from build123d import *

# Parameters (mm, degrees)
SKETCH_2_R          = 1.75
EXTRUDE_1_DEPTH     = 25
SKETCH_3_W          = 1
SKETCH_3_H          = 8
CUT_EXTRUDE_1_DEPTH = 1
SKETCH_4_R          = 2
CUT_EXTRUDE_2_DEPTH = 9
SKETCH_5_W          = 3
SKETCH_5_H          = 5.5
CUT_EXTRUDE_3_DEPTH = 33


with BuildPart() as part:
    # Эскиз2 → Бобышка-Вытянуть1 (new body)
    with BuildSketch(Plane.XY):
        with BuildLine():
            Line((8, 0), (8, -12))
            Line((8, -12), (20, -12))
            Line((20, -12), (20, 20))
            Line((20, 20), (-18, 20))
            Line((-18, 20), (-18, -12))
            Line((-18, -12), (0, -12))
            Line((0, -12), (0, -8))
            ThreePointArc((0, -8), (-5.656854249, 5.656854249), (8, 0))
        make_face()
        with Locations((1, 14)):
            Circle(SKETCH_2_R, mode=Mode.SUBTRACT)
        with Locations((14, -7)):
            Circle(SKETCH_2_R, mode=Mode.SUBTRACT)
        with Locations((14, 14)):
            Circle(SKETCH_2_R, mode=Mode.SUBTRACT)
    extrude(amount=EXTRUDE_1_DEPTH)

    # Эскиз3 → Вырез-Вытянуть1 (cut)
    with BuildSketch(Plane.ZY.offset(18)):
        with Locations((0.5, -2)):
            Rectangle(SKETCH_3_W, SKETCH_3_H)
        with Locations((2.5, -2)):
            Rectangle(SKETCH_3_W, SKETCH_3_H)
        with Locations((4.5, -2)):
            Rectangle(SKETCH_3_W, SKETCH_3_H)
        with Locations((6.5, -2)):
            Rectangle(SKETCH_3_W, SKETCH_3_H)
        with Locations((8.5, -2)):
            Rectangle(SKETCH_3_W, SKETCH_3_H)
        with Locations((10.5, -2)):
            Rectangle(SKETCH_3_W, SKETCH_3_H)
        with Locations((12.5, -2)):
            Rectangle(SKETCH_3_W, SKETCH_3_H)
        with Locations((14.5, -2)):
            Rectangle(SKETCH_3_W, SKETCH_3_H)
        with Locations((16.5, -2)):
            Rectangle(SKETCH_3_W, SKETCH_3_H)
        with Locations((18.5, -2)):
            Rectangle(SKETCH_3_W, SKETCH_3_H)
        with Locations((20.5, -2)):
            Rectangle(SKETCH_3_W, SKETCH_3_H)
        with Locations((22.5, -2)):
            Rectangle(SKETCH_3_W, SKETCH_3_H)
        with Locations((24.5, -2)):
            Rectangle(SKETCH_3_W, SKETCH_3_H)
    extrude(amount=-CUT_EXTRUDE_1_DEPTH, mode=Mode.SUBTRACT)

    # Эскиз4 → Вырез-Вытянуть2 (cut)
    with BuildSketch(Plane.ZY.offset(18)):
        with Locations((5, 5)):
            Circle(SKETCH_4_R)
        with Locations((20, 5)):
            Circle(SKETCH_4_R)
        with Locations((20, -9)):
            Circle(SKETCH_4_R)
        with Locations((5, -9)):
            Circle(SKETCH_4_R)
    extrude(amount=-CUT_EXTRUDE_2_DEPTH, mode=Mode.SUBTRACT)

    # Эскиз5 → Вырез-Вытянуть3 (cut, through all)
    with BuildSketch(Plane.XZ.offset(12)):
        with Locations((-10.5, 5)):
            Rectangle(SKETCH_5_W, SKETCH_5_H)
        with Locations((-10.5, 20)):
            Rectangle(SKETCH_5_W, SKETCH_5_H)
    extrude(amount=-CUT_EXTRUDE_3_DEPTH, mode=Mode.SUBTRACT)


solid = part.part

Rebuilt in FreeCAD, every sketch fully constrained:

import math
import FreeCAD as App
import Part
import Sketcher
Q = App.Units.Quantity


def add_polygon(sketch, points):
    """Adds a closed chain of lines whose ends are joined by coincident constraints."""
    first, n = sketch.GeometryCount, len(points)
    for a, b in zip(points, points[1:] + points[:1]):
        sketch.addGeometry(Part.LineSegment(App.Vector(*a, 0), App.Vector(*b, 0)), False)
    for i in range(n):
        sketch.addConstraint(Sketcher.Constraint("Coincident", first + i, 2, first + (i + 1) % n, 1))

doc = App.newDocument("Part")
body = doc.addObject("PartDesign::Body", "Body")

# Sketch on XY plane
sketch1 = body.newObject("Sketcher::SketchObject", "Sketch")
sketch1.AttachmentSupport = (doc.getObject("XY_Plane"), [""])
sketch1.MapMode = "FlatFace"
sketch1.addGeometry(Part.LineSegment(App.Vector(8, 0, 0), App.Vector(8, -12, 0)), False)
sketch1.addGeometry(Part.LineSegment(App.Vector(8, -12, 0), App.Vector(20, -12, 0)), False)
sketch1.addGeometry(Part.LineSegment(App.Vector(20, -12, 0), App.Vector(20, 20, 0)), False)
sketch1.addGeometry(Part.LineSegment(App.Vector(20, 20, 0), App.Vector(-18, 20, 0)), False)
sketch1.addGeometry(Part.LineSegment(App.Vector(-18, 20, 0), App.Vector(-18, -12, 0)), False)
sketch1.addGeometry(Part.LineSegment(App.Vector(-18, -12, 0), App.Vector(0, -12, 0)), False)
sketch1.addGeometry(Part.LineSegment(App.Vector(0, -12, 0), App.Vector(0, -8, 0)), False)
sketch1.addGeometry(Part.ArcOfCircle(Part.Circle(App.Vector(0, 0, 0), App.Vector(0, 0, 1), 8), math.radians(0), math.radians(270)), False)
sketch1.addGeometry(Part.Circle(App.Vector(14, -7, 0), App.Vector(0, 0, 1), 1.75), False)
sketch1.addGeometry(Part.Circle(App.Vector(1, 14, 0), App.Vector(0, 0, 1), 1.75), False)
sketch1.addGeometry(Part.Circle(App.Vector(14, 14, 0), App.Vector(0, 0, 1), 1.75), False)
sketch1.addConstraint(Sketcher.Constraint("Coincident", 0, 2, 1, 1))
sketch1.addConstraint(Sketcher.Constraint("Coincident", 1, 2, 2, 1))
sketch1.addConstraint(Sketcher.Constraint("Coincident", 2, 2, 3, 1))
sketch1.addConstraint(Sketcher.Constraint("Coincident", 3, 2, 4, 1))
sketch1.addConstraint(Sketcher.Constraint("Coincident", 4, 2, 5, 1))
sketch1.addConstraint(Sketcher.Constraint("Coincident", 5, 2, 6, 1))
sketch1.addConstraint(Sketcher.Constraint("Coincident", 6, 2, 7, 2))
sketch1.addConstraint(Sketcher.Constraint("Tangent", 7, 1, 0, 1))
sketch1.addConstraint(Sketcher.Constraint("Vertical", 0))
sketch1.addConstraint(Sketcher.Constraint("Horizontal", 1))
sketch1.addConstraint(Sketcher.Constraint("Vertical", 2))
sketch1.addConstraint(Sketcher.Constraint("Horizontal", 3))
sketch1.addConstraint(Sketcher.Constraint("Vertical", 4))
sketch1.addConstraint(Sketcher.Constraint("Horizontal", 5))
sketch1.addConstraint(Sketcher.Constraint("Vertical", 6))
sketch1.addConstraint(Sketcher.Constraint("Coincident", 7, 3, -1, 1))
sketch1.addConstraint(Sketcher.Constraint("Equal", 8, 9))
sketch1.addConstraint(Sketcher.Constraint("Equal", 9, 10))
sketch1.addConstraint(Sketcher.Constraint("PointOnObject", 5, 2, -2))
sketch1.addConstraint(Sketcher.Constraint("Horizontal", 9, 3, 10, 3))
sketch1.addConstraint(Sketcher.Constraint("Horizontal", 1, 2, 4, 2))
sketch1.addConstraint(Sketcher.Constraint("Vertical", 8, 3, 10, 3))
sketch1.addConstraint(Sketcher.Constraint("Equal", 1, 0))
sketch1.addConstraint(Sketcher.Constraint("Radius", 7, Q("8 mm")))
sketch1.addConstraint(Sketcher.Constraint("Diameter", 8, Q("3.5 mm")))
sketch1.addConstraint(Sketcher.Constraint("DistanceX", 1, 1, 1, 2, Q("12 mm")))
sketch1.addConstraint(Sketcher.Constraint("DistanceX", 3, 2, 3, 1, Q("38 mm")))
sketch1.addConstraint(Sketcher.Constraint("DistanceY", 2, 1, 2, 2, Q("32 mm")))
sketch1.addConstraint(Sketcher.Constraint("DistanceX", -1, 1, 8, 3, Q("14 mm")))
sketch1.addConstraint(Sketcher.Constraint("DistanceY", 8, 3, -1, 1, Q("7 mm")))
sketch1.addConstraint(Sketcher.Constraint("DistanceX", -1, 1, 9, 3, Q("1 mm")))
sketch1.addConstraint(Sketcher.Constraint("DistanceY", -1, 1, 9, 3, Q("14 mm")))
pad1 = body.newObject("PartDesign::Pad", "Pad")
pad1.Profile = sketch1
pad1.Length = 25

# Sketch on YZ plane
sketch2 = body.newObject("Sketcher::SketchObject", "Sketch001")
sketch2.AttachmentSupport = (doc.getObject("YZ_Plane"), [""])
sketch2.MapMode = "FlatFace"
sketch2.AttachmentOffset = App.Placement(App.Vector(0, 0, -18), App.Rotation())
add_polygon(sketch2, [(2, 0), (-6, 0), (-6, 1), (2, 1)])  # lines 0-3
add_polygon(sketch2, [(2, 2), (-6, 2), (-6, 3), (2, 3)])  # lines 4-7
add_polygon(sketch2, [(2, 4), (-6, 4), (-6, 5), (2, 5)])  # lines 8-11
add_polygon(sketch2, [(2, 6), (-6, 6), (-6, 7), (2, 7)])  # lines 12-15
add_polygon(sketch2, [(2, 8), (-6, 8), (-6, 9), (2, 9)])  # lines 16-19
add_polygon(sketch2, [(2, 10), (-6, 10), (-6, 11), (2, 11)])  # lines 20-23
add_polygon(sketch2, [(2, 12), (-6, 12), (-6, 13), (2, 13)])  # lines 24-27
add_polygon(sketch2, [(2, 14), (-6, 14), (-6, 15), (2, 15)])  # lines 28-31
add_polygon(sketch2, [(2, 16), (-6, 16), (-6, 17), (2, 17)])  # lines 32-35
add_polygon(sketch2, [(2, 18), (-6, 18), (-6, 19), (2, 19)])  # lines 36-39
add_polygon(sketch2, [(2, 20), (-6, 20), (-6, 21), (2, 21)])  # lines 40-43
add_polygon(sketch2, [(2, 22), (-6, 22), (-6, 23), (2, 23)])  # lines 44-47
add_polygon(sketch2, [(2, 24), (-6, 24), (-6, 25), (2, 25)])  # lines 48-51
sketch2.addConstraint(Sketcher.Constraint("Horizontal", 0))
sketch2.addConstraint(Sketcher.Constraint("Vertical", 1))
sketch2.addConstraint(Sketcher.Constraint("Horizontal", 2))
sketch2.addConstraint(Sketcher.Constraint("Vertical", 3))
sketch2.addConstraint(Sketcher.Constraint("Horizontal", 4))
sketch2.addConstraint(Sketcher.Constraint("Vertical", 5))
sketch2.addConstraint(Sketcher.Constraint("Horizontal", 6))
sketch2.addConstraint(Sketcher.Constraint("Vertical", 7))
sketch2.addConstraint(Sketcher.Constraint("Horizontal", 8))
sketch2.addConstraint(Sketcher.Constraint("Vertical", 9))
sketch2.addConstraint(Sketcher.Constraint("Horizontal", 10))
sketch2.addConstraint(Sketcher.Constraint("Vertical", 11))
sketch2.addConstraint(Sketcher.Constraint("Horizontal", 12))
sketch2.addConstraint(Sketcher.Constraint("Vertical", 13))
sketch2.addConstraint(Sketcher.Constraint("Horizontal", 14))
sketch2.addConstraint(Sketcher.Constraint("Vertical", 15))
sketch2.addConstraint(Sketcher.Constraint("Horizontal", 16))
sketch2.addConstraint(Sketcher.Constraint("Vertical", 17))
sketch2.addConstraint(Sketcher.Constraint("Horizontal", 18))
sketch2.addConstraint(Sketcher.Constraint("Vertical", 19))
sketch2.addConstraint(Sketcher.Constraint("Horizontal", 20))
sketch2.addConstraint(Sketcher.Constraint("Vertical", 21))
sketch2.addConstraint(Sketcher.Constraint("Horizontal", 22))
sketch2.addConstraint(Sketcher.Constraint("Vertical", 23))
sketch2.addConstraint(Sketcher.Constraint("Horizontal", 24))
sketch2.addConstraint(Sketcher.Constraint("Vertical", 25))
sketch2.addConstraint(Sketcher.Constraint("Horizontal", 26))
sketch2.addConstraint(Sketcher.Constraint("Vertical", 27))
sketch2.addConstraint(Sketcher.Constraint("Horizontal", 28))
sketch2.addConstraint(Sketcher.Constraint("Vertical", 29))
sketch2.addConstraint(Sketcher.Constraint("Horizontal", 30))
sketch2.addConstraint(Sketcher.Constraint("Vertical", 31))
sketch2.addConstraint(Sketcher.Constraint("Horizontal", 32))
sketch2.addConstraint(Sketcher.Constraint("Vertical", 33))
sketch2.addConstraint(Sketcher.Constraint("Horizontal", 34))
sketch2.addConstraint(Sketcher.Constraint("Vertical", 35))
sketch2.addConstraint(Sketcher.Constraint("Horizontal", 36))
sketch2.addConstraint(Sketcher.Constraint("Vertical", 37))
sketch2.addConstraint(Sketcher.Constraint("Horizontal", 38))
sketch2.addConstraint(Sketcher.Constraint("Vertical", 39))
sketch2.addConstraint(Sketcher.Constraint("Horizontal", 40))
sketch2.addConstraint(Sketcher.Constraint("Vertical", 41))
sketch2.addConstraint(Sketcher.Constraint("Horizontal", 42))
sketch2.addConstraint(Sketcher.Constraint("Vertical", 43))
sketch2.addConstraint(Sketcher.Constraint("Horizontal", 44))
sketch2.addConstraint(Sketcher.Constraint("Vertical", 45))
sketch2.addConstraint(Sketcher.Constraint("Horizontal", 46))
sketch2.addConstraint(Sketcher.Constraint("Vertical", 47))
sketch2.addConstraint(Sketcher.Constraint("Horizontal", 48))
sketch2.addConstraint(Sketcher.Constraint("Vertical", 49))
sketch2.addConstraint(Sketcher.Constraint("Horizontal", 50))
sketch2.addConstraint(Sketcher.Constraint("Vertical", 51))
sketch2.addConstraint(Sketcher.Constraint("PointOnObject", 0, 2, -1))
sketch2.addConstraint(Sketcher.Constraint("Vertical", 1, 2, 4, 2))
sketch2.addConstraint(Sketcher.Constraint("Vertical", 3, 2, 6, 2))
sketch2.addConstraint(Sketcher.Constraint("Vertical", 5, 2, 8, 2))
sketch2.addConstraint(Sketcher.Constraint("Vertical", 7, 2, 10, 2))
sketch2.addConstraint(Sketcher.Constraint("Vertical", 9, 2, 12, 2))
sketch2.addConstraint(Sketcher.Constraint("Vertical", 11, 2, 14, 2))
sketch2.addConstraint(Sketcher.Constraint("Vertical", 13, 2, 16, 2))
sketch2.addConstraint(Sketcher.Constraint("Vertical", 15, 2, 18, 2))
sketch2.addConstraint(Sketcher.Constraint("Vertical", 17, 2, 20, 2))
sketch2.addConstraint(Sketcher.Constraint("Vertical", 19, 2, 22, 2))
sketch2.addConstraint(Sketcher.Constraint("Vertical", 21, 2, 24, 2))
sketch2.addConstraint(Sketcher.Constraint("Vertical", 23, 2, 26, 2))
sketch2.addConstraint(Sketcher.Constraint("Vertical", 25, 2, 28, 2))
sketch2.addConstraint(Sketcher.Constraint("Vertical", 27, 2, 30, 2))
sketch2.addConstraint(Sketcher.Constraint("Vertical", 29, 2, 32, 2))
sketch2.addConstraint(Sketcher.Constraint("Vertical", 31, 2, 34, 2))
sketch2.addConstraint(Sketcher.Constraint("Vertical", 33, 2, 36, 2))
sketch2.addConstraint(Sketcher.Constraint("Vertical", 35, 2, 38, 2))
sketch2.addConstraint(Sketcher.Constraint("Vertical", 37, 2, 40, 2))
sketch2.addConstraint(Sketcher.Constraint("Vertical", 39, 2, 42, 2))
sketch2.addConstraint(Sketcher.Constraint("Vertical", 41, 2, 44, 2))
sketch2.addConstraint(Sketcher.Constraint("Vertical", 43, 2, 46, 2))
sketch2.addConstraint(Sketcher.Constraint("Vertical", 45, 2, 48, 2))
sketch2.addConstraint(Sketcher.Constraint("Vertical", 47, 2, 50, 2))
sketch2.addConstraint(Sketcher.Constraint("Equal", 3, 5))
sketch2.addConstraint(Sketcher.Constraint("Equal", 7, 9))
sketch2.addConstraint(Sketcher.Constraint("Equal", 11, 13))
sketch2.addConstraint(Sketcher.Constraint("Equal", 15, 17))
sketch2.addConstraint(Sketcher.Constraint("Equal", 19, 21))
sketch2.addConstraint(Sketcher.Constraint("Equal", 23, 25))
sketch2.addConstraint(Sketcher.Constraint("Equal", 27, 29))
sketch2.addConstraint(Sketcher.Constraint("Equal", 31, 33))
sketch2.addConstraint(Sketcher.Constraint("Equal", 35, 37))
sketch2.addConstraint(Sketcher.Constraint("Equal", 39, 41))
sketch2.addConstraint(Sketcher.Constraint("Equal", 43, 45))
sketch2.addConstraint(Sketcher.Constraint("Equal", 47, 49))
sketch2.addConstraint(Sketcher.Constraint("DistanceX", 0, 2, 0, 1, Q("8 mm")))
sketch2.addConstraint(Sketcher.Constraint("DistanceY", 1, 1, 1, 2, Q("1 mm")))
sketch2.addConstraint(Sketcher.Constraint("DistanceX", 0, 2, -1, 1, Q("6 mm")))
sketch2.addConstraint(Sketcher.Constraint("DistanceY", -1, 1, 4, 2, Q("2 mm")))
sketch2.addConstraint(Sketcher.Constraint("DistanceY", -1, 1, 8, 2, Q("4 mm")))
sketch2.addConstraint(Sketcher.Constraint("DistanceY", -1, 1, 12, 2, Q("6 mm")))
sketch2.addConstraint(Sketcher.Constraint("DistanceY", -1, 1, 16, 2, Q("8 mm")))
sketch2.addConstraint(Sketcher.Constraint("DistanceY", -1, 1, 20, 2, Q("10 mm")))
sketch2.addConstraint(Sketcher.Constraint("DistanceY", -1, 1, 24, 2, Q("12 mm")))
sketch2.addConstraint(Sketcher.Constraint("DistanceY", -1, 1, 28, 2, Q("14 mm")))
sketch2.addConstraint(Sketcher.Constraint("DistanceY", -1, 1, 32, 2, Q("16 mm")))
sketch2.addConstraint(Sketcher.Constraint("DistanceY", -1, 1, 36, 2, Q("18 mm")))
sketch2.addConstraint(Sketcher.Constraint("DistanceY", -1, 1, 40, 2, Q("20 mm")))
sketch2.addConstraint(Sketcher.Constraint("DistanceY", -1, 1, 44, 2, Q("22 mm")))
sketch2.addConstraint(Sketcher.Constraint("DistanceY", -1, 1, 48, 2, Q("24 mm")))
pocket1 = body.newObject("PartDesign::Pocket", "Pocket")
pocket1.Profile = sketch2
pocket1.Length = 1
pocket1.Reversed = True

# Sketch on YZ plane
sketch3 = body.newObject("Sketcher::SketchObject", "Sketch002")
sketch3.AttachmentSupport = (doc.getObject("YZ_Plane"), [""])
sketch3.MapMode = "FlatFace"
sketch3.AttachmentOffset = App.Placement(App.Vector(0, 0, -18), App.Rotation())
sketch3.addGeometry(Part.Circle(App.Vector(5, 5, 0), App.Vector(0, 0, 1), 2), False)
sketch3.addGeometry(Part.Circle(App.Vector(5, 20, 0), App.Vector(0, 0, 1), 2), False)
sketch3.addGeometry(Part.Circle(App.Vector(-9, 20, 0), App.Vector(0, 0, 1), 2), False)
sketch3.addGeometry(Part.Circle(App.Vector(-9, 5, 0), App.Vector(0, 0, 1), 2), False)
sketch3.addConstraint(Sketcher.Constraint("Equal", 0, 1))
sketch3.addConstraint(Sketcher.Constraint("Equal", 1, 2))
sketch3.addConstraint(Sketcher.Constraint("Equal", 2, 3))
sketch3.addConstraint(Sketcher.Constraint("Horizontal", 1, 3, 2, 3))
sketch3.addConstraint(Sketcher.Constraint("Horizontal", 0, 3, 3, 3))
sketch3.addConstraint(Sketcher.Constraint("Vertical", 0, 3, 1, 3))
sketch3.addConstraint(Sketcher.Constraint("Vertical", 2, 3, 3, 3))
sketch3.addConstraint(Sketcher.Constraint("Diameter", 0, Q("4 mm")))
sketch3.addConstraint(Sketcher.Constraint("DistanceX", -1, 1, 0, 3, Q("5 mm")))
sketch3.addConstraint(Sketcher.Constraint("DistanceY", -1, 1, 0, 3, Q("5 mm")))
sketch3.addConstraint(Sketcher.Constraint("DistanceY", -1, 1, 1, 3, Q("20 mm")))
sketch3.addConstraint(Sketcher.Constraint("DistanceX", 2, 3, -1, 1, Q("9 mm")))
pocket2 = body.newObject("PartDesign::Pocket", "Pocket001")
pocket2.Profile = sketch3
pocket2.Length = 9
pocket2.Reversed = True

# Sketch on XZ plane
sketch4 = body.newObject("Sketcher::SketchObject", "Sketch003")
sketch4.AttachmentSupport = (doc.getObject("XZ_Plane"), [""])
sketch4.MapMode = "FlatFace"
sketch4.AttachmentOffset = App.Placement(App.Vector(0, 0, 12), App.Rotation())
add_polygon(sketch4, [(-12, 7.75), (-12, 2.25), (-9, 2.25), (-9, 7.75)])  # lines 0-3
add_polygon(sketch4, [(-12, 22.75), (-12, 17.25), (-9, 17.25), (-9, 22.75)])  # lines 4-7
sketch4.addConstraint(Sketcher.Constraint("Vertical", 0))
sketch4.addConstraint(Sketcher.Constraint("Horizontal", 1))
sketch4.addConstraint(Sketcher.Constraint("Vertical", 2))
sketch4.addConstraint(Sketcher.Constraint("Horizontal", 3))
sketch4.addConstraint(Sketcher.Constraint("Vertical", 4))
sketch4.addConstraint(Sketcher.Constraint("Horizontal", 5))
sketch4.addConstraint(Sketcher.Constraint("Vertical", 6))
sketch4.addConstraint(Sketcher.Constraint("Horizontal", 7))
sketch4.addConstraint(Sketcher.Constraint("Vertical", 3, 2, 4, 2))
sketch4.addConstraint(Sketcher.Constraint("Vertical", 2, 2, 5, 2))
sketch4.addConstraint(Sketcher.Constraint("Equal", 2, 4))
sketch4.addConstraint(Sketcher.Constraint("DistanceX", 1, 1, 1, 2, Q("3 mm")))
sketch4.addConstraint(Sketcher.Constraint("DistanceY", 0, 2, 0, 1, Q("5.5 mm")))
sketch4.addConstraint(Sketcher.Constraint("DistanceX", 0, 2, -1, 1, Q("12 mm")))
sketch4.addConstraint(Sketcher.Constraint("DistanceY", 0, 2, 4, 2, Q("15 mm")))
sketch4.addConstraint(Sketcher.Constraint("DistanceY", -1, 1, 0, 2, Q("2.25 mm")))
pocket3 = body.newObject("PartDesign::Pocket", "Pocket002")
pocket3.Profile = sketch4
pocket3.Type = "ThroughAll"

doc.recompute()
